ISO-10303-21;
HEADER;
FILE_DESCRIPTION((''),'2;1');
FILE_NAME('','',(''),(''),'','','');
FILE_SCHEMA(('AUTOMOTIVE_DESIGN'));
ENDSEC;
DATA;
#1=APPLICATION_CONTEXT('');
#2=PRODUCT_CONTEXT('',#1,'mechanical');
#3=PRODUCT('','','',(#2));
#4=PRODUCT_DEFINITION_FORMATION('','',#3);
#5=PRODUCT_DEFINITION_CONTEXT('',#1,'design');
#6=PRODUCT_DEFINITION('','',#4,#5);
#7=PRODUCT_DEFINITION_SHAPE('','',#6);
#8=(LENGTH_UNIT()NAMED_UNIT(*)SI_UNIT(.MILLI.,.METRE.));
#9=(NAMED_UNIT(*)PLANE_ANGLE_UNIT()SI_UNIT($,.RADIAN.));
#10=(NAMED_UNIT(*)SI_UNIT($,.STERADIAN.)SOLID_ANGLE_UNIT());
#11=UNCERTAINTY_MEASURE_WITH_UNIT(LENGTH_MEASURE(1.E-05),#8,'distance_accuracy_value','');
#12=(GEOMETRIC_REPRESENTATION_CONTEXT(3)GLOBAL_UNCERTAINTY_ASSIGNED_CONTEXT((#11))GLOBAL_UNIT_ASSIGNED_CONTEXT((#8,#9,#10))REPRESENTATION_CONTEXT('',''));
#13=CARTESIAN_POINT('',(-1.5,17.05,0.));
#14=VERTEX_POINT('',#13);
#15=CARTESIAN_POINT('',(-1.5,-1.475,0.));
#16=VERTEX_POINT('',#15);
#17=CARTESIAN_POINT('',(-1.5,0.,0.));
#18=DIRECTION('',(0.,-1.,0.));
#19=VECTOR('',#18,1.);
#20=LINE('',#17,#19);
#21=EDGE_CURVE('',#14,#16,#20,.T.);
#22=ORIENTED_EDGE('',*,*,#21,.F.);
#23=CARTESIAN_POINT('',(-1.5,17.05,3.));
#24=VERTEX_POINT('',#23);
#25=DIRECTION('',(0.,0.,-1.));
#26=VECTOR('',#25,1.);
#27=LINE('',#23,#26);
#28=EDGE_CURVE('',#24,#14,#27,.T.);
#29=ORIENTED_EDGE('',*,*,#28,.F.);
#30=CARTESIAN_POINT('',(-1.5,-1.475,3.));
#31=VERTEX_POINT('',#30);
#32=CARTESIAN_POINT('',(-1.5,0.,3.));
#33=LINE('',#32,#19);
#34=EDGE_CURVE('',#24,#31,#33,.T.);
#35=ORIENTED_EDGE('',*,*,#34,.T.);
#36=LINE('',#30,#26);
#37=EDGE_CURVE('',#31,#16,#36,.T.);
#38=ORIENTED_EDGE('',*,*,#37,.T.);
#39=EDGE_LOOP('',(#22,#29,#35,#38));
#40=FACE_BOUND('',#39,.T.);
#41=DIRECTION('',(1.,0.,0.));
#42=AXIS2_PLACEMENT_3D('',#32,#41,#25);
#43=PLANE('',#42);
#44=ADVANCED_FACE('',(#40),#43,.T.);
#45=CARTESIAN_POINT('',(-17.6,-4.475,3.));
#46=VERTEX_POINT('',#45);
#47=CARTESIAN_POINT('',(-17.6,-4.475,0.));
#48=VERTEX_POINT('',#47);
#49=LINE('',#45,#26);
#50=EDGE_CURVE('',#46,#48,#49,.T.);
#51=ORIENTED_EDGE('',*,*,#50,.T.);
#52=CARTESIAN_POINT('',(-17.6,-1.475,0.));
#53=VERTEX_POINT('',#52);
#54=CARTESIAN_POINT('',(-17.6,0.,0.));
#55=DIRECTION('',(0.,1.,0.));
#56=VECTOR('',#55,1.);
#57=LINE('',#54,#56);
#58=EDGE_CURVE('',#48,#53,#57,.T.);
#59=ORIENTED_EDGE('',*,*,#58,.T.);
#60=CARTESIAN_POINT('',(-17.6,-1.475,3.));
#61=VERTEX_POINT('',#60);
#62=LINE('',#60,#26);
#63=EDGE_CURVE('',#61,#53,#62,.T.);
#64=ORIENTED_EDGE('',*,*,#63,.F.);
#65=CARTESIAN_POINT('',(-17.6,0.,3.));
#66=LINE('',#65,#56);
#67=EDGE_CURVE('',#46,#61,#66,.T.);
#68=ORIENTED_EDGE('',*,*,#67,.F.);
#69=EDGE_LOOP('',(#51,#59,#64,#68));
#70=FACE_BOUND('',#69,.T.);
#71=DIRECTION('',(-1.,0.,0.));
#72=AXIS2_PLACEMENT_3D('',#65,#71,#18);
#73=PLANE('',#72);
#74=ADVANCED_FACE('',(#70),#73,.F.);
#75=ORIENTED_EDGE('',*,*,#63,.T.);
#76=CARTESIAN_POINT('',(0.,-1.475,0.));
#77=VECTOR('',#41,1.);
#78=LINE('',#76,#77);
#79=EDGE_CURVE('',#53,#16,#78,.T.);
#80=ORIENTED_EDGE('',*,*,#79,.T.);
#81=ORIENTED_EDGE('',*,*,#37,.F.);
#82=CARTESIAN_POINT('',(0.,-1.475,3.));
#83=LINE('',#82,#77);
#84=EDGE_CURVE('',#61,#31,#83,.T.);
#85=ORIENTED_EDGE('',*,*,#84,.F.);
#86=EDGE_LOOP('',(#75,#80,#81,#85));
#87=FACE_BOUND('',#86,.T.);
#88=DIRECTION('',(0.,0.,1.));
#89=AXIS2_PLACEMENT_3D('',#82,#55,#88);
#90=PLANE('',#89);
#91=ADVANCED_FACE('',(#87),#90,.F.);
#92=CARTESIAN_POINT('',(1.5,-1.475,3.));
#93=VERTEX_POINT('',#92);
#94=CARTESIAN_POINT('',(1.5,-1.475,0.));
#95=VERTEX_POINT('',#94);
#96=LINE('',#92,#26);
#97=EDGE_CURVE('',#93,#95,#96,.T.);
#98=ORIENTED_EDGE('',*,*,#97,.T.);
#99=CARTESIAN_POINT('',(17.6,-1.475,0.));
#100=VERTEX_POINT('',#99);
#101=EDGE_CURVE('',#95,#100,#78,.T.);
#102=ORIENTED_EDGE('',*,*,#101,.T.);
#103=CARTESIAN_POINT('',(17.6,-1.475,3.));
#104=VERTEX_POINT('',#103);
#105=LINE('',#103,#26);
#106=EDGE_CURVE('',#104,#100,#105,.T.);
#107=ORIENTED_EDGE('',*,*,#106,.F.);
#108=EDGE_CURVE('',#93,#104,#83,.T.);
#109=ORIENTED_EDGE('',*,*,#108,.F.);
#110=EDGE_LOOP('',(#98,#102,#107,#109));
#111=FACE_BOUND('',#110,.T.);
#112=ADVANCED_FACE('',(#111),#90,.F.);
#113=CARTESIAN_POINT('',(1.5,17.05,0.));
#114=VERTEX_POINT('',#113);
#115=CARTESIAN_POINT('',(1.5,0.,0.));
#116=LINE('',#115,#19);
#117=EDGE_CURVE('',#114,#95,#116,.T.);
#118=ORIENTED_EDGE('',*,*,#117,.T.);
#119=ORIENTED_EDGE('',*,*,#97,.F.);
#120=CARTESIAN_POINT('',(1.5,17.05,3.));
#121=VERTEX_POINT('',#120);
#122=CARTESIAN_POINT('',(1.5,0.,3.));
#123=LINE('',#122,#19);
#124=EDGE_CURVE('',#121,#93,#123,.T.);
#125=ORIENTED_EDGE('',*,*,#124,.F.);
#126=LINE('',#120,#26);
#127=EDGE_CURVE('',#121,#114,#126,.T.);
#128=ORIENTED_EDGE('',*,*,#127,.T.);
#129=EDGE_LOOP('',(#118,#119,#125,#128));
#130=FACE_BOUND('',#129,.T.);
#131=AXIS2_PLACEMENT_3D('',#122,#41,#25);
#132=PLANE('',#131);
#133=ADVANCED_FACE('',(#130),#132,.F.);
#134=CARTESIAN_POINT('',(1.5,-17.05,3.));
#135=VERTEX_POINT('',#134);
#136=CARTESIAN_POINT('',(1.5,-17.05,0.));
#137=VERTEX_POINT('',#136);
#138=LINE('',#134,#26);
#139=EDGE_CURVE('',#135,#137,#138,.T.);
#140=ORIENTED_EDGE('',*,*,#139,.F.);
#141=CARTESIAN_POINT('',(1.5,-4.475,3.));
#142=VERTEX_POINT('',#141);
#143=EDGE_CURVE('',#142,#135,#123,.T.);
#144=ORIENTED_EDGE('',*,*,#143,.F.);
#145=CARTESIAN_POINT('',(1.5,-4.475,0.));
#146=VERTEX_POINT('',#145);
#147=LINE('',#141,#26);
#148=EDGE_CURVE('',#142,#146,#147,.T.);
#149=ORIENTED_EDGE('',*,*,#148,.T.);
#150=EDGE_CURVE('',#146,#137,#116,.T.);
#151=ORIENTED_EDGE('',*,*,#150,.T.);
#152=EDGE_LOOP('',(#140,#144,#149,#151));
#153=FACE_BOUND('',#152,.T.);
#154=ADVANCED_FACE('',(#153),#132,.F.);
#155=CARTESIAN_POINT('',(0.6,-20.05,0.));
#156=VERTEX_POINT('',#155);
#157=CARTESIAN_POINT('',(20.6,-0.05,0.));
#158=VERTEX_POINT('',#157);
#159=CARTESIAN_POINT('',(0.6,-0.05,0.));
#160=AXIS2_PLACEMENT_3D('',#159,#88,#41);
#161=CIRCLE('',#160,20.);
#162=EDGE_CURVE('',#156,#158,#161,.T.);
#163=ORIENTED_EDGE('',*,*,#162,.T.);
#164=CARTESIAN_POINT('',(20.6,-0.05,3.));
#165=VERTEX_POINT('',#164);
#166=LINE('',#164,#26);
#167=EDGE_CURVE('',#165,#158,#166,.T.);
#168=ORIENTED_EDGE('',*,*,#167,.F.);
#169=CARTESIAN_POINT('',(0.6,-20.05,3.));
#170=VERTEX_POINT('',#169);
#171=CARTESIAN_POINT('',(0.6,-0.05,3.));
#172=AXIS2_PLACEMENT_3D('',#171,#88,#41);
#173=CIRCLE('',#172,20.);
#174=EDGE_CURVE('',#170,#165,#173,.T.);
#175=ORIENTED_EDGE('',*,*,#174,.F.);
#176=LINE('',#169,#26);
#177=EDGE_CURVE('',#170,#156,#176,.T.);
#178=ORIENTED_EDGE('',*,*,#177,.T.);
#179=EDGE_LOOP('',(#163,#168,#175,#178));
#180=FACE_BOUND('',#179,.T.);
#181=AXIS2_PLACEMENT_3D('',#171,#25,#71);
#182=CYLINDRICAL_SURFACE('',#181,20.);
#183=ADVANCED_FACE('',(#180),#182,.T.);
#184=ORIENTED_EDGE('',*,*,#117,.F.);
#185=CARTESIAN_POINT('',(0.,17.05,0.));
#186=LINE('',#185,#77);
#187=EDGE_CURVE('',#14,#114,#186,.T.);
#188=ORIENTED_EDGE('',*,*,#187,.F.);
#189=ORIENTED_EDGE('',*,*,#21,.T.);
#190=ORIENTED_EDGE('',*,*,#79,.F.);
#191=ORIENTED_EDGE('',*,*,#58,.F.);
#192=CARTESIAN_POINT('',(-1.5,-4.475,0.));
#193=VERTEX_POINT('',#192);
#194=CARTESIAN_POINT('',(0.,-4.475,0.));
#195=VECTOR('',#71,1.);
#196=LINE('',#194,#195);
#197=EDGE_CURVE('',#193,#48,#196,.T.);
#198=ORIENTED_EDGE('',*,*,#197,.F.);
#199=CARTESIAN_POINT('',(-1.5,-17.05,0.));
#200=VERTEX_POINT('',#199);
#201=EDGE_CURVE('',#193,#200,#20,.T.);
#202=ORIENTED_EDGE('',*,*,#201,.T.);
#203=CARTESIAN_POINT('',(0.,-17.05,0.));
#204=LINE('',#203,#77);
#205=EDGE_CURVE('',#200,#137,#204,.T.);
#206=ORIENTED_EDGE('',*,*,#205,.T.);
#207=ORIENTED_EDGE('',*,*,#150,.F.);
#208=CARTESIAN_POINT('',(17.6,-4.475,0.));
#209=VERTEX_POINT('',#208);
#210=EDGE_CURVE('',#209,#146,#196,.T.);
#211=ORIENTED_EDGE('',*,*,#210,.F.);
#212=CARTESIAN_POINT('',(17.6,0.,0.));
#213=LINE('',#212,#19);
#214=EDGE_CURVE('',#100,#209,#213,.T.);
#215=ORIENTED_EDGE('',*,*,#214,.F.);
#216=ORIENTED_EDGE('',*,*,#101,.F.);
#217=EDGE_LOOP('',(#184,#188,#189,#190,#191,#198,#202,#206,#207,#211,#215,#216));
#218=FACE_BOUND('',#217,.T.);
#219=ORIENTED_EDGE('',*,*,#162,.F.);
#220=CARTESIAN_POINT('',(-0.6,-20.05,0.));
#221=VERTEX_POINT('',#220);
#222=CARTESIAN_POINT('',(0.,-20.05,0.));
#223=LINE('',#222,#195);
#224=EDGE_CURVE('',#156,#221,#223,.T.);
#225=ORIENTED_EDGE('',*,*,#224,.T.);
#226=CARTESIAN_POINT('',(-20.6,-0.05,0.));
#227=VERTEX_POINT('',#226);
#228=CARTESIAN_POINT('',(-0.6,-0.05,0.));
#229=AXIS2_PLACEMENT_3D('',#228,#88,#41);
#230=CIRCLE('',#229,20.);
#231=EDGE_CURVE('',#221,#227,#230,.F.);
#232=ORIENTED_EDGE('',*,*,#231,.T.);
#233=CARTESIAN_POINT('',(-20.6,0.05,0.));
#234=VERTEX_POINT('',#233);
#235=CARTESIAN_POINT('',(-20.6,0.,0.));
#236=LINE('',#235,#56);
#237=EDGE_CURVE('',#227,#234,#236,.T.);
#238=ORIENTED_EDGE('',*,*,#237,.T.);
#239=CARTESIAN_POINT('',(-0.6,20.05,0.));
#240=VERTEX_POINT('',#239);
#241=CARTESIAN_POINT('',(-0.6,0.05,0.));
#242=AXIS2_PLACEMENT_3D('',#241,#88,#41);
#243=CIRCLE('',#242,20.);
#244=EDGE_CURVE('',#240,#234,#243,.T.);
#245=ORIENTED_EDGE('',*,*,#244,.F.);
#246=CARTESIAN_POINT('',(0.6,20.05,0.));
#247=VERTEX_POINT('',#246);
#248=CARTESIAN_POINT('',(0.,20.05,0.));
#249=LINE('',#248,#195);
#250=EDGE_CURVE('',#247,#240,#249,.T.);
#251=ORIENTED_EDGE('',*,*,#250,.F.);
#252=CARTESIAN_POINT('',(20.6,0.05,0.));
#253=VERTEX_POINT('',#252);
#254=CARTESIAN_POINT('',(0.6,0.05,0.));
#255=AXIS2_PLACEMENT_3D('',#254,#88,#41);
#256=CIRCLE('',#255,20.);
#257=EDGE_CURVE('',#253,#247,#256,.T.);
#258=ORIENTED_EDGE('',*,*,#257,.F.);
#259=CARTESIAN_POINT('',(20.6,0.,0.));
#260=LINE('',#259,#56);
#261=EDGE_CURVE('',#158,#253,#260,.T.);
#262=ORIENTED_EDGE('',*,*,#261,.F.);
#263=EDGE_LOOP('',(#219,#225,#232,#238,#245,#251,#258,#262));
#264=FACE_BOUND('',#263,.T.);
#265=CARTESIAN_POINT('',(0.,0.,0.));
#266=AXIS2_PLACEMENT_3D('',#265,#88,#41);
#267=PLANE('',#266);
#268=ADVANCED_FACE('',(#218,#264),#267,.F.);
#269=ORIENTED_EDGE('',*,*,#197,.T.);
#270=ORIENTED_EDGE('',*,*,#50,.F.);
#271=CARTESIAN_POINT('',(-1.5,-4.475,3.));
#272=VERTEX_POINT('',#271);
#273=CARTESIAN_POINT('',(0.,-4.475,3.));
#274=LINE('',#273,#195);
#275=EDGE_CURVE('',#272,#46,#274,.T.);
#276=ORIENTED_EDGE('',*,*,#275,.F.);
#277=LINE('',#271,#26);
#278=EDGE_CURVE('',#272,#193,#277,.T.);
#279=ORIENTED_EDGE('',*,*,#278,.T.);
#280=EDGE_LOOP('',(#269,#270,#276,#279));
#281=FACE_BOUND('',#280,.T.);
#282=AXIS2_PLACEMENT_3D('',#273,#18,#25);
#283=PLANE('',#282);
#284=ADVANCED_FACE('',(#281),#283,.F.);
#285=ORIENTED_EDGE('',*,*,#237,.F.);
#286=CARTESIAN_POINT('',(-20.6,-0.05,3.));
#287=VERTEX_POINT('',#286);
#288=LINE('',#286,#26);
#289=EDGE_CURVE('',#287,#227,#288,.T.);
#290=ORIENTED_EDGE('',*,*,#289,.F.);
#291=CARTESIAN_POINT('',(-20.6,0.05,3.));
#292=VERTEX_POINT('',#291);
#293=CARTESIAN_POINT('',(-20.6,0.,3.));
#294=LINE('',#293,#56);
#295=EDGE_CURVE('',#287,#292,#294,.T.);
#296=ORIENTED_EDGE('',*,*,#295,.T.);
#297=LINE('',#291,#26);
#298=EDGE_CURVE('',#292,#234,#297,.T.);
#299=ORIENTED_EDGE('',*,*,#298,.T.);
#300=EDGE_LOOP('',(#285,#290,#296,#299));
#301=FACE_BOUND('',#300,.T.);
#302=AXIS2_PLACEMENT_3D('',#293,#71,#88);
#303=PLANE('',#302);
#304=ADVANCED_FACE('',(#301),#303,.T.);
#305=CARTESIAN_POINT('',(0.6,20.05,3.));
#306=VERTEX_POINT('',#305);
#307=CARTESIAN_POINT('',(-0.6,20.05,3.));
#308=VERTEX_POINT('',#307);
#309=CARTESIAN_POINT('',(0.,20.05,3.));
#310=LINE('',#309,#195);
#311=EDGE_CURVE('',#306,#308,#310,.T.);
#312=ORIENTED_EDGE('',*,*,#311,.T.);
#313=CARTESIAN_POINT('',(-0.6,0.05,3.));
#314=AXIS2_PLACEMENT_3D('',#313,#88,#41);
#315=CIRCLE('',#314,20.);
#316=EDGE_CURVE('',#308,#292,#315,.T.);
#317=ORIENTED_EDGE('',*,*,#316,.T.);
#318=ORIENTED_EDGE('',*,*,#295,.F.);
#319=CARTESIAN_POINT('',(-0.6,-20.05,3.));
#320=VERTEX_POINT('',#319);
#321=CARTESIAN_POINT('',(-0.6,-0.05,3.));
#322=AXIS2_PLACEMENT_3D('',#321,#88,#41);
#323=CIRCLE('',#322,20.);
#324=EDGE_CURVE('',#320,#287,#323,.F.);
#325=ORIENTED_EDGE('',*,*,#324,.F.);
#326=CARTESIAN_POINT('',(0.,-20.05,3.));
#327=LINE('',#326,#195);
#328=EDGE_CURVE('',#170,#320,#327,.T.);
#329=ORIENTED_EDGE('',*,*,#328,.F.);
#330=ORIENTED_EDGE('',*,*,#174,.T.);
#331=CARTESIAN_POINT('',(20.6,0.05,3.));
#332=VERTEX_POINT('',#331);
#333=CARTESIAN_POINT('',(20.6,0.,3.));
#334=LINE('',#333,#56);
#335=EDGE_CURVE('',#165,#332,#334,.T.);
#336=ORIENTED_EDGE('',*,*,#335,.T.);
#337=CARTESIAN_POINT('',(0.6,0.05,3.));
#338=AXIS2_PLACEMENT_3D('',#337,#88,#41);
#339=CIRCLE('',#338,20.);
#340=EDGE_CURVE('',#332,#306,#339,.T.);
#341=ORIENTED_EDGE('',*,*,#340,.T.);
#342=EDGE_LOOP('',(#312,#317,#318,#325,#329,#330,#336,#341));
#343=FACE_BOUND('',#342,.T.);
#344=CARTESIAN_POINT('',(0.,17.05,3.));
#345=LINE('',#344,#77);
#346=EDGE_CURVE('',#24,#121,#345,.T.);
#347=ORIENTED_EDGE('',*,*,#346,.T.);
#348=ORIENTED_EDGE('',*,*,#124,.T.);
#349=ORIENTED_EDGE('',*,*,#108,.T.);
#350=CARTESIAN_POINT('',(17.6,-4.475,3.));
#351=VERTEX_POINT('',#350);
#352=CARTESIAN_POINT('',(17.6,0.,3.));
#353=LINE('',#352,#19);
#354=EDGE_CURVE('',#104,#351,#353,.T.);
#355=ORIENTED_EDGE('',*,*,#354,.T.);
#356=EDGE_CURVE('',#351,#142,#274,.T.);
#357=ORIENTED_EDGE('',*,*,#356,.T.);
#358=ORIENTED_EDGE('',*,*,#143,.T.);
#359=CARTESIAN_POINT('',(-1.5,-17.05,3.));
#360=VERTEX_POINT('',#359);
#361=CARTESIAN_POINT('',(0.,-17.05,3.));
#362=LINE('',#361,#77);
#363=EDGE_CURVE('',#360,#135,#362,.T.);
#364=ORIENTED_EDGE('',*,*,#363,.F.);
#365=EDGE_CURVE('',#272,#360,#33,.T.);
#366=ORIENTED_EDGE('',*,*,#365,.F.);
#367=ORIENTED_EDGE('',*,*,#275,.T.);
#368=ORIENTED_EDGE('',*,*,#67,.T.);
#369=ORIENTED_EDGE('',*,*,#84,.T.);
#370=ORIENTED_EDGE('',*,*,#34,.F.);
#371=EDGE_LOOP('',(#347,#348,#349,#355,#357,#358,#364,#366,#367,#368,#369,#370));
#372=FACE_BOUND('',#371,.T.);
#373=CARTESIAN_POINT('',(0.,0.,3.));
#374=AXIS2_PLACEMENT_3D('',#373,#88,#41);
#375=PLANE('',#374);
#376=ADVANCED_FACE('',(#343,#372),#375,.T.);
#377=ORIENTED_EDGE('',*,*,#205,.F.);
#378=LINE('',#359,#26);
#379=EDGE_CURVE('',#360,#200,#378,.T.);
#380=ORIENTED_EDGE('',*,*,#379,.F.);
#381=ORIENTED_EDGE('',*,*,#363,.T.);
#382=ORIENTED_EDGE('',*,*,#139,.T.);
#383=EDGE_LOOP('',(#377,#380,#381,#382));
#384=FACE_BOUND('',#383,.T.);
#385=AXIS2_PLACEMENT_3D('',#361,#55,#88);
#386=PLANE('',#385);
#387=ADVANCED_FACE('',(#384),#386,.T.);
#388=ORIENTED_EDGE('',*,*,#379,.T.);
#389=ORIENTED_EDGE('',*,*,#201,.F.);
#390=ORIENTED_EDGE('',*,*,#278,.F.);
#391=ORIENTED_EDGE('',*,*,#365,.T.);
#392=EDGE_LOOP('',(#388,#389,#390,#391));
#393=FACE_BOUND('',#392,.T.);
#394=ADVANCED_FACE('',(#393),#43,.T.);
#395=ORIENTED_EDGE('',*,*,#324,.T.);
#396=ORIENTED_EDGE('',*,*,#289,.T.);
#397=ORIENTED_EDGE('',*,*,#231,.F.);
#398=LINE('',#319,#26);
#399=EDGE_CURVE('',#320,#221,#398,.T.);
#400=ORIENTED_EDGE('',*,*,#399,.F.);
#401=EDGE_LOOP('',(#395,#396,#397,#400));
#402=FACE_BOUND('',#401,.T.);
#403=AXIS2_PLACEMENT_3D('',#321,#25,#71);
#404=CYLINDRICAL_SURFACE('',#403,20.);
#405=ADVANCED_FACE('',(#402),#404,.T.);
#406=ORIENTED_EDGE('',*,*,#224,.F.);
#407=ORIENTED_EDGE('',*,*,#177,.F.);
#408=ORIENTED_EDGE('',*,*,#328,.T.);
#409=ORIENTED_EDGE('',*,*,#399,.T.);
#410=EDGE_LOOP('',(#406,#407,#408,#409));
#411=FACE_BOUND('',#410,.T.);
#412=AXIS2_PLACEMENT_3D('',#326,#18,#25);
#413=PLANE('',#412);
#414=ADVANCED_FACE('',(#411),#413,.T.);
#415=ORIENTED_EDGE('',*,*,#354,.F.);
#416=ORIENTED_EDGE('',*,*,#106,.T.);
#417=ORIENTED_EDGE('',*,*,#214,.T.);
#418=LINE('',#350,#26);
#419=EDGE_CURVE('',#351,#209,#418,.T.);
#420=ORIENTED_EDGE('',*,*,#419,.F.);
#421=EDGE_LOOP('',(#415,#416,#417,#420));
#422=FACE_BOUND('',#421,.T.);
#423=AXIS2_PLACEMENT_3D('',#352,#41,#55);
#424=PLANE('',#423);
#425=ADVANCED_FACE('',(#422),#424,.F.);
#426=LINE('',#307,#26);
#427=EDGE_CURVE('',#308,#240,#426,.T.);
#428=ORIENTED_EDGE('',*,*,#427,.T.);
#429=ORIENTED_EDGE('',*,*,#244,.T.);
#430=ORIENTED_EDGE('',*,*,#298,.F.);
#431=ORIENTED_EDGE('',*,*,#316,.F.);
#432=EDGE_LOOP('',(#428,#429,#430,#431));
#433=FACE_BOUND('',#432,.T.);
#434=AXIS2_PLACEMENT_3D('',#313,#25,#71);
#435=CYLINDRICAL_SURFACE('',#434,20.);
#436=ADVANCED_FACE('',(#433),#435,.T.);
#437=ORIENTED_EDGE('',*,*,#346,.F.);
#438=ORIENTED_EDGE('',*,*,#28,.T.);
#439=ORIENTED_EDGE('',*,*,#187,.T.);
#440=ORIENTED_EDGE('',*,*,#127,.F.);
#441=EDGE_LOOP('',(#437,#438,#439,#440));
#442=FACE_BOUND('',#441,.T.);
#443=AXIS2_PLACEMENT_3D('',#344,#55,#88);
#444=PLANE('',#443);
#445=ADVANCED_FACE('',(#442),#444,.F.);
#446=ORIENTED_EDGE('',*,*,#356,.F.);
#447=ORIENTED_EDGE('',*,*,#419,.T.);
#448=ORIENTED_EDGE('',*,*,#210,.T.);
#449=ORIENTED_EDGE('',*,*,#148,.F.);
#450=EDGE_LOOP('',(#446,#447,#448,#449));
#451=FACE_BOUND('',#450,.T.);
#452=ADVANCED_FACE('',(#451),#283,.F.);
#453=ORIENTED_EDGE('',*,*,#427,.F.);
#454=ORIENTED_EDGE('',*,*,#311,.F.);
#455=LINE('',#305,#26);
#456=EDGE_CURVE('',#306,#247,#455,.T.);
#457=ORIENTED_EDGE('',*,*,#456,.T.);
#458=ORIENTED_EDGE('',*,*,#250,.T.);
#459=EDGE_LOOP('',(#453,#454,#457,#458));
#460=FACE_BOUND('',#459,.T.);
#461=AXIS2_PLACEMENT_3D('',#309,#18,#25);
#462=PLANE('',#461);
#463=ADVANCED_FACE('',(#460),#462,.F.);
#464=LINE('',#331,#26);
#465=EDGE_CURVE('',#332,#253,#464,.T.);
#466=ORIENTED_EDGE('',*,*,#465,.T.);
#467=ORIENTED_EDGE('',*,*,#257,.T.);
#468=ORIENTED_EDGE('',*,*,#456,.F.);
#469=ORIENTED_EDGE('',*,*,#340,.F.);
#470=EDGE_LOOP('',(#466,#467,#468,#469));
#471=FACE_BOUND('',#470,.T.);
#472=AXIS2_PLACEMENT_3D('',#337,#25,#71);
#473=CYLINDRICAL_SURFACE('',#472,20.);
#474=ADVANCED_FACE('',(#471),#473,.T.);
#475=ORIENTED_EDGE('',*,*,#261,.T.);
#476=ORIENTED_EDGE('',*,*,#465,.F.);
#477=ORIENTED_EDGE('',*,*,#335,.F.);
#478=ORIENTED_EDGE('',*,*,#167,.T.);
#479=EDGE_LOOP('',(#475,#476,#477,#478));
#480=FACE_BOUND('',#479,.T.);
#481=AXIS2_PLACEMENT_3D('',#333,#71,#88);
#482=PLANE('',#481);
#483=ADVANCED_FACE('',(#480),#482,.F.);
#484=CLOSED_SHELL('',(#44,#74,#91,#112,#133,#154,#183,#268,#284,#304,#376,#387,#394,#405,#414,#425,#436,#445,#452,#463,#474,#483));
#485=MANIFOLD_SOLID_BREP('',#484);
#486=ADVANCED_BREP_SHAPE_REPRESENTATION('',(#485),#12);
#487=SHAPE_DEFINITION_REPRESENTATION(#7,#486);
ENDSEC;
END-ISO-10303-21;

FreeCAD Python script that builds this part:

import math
import FreeCAD as App
import Part
import Sketcher
from FreeCAD import Vector
Q = App.Units.Quantity


def add_polygon(sketch, points):
    """Adds a closed chain of lines whose ends are joined by coincident constraints."""
    first, n = sketch.GeometryCount, len(points)
    for a, b in zip(points, points[1:] + points[:1]):
        sketch.addGeometry(Part.LineSegment(App.Vector(*a, 0), App.Vector(*b, 0)), False)
    for i in range(n):
        sketch.addConstraint(Sketcher.Constraint("Coincident", first + i, 2, first + (i + 1) % n, 1))

doc = App.newDocument("Part")
body = doc.addObject("PartDesign::Body", "Body")

# Sketch on XY plane
sketch1 = body.newObject("Sketcher::SketchObject", "Sketch")
sketch1.AttachmentSupport = (doc.getObject("XY_Plane"), [""])
sketch1.MapMode = "FlatFace"
sketch1.addGeometry(Part.LineSegment(Vector(-0.6, -20.05, 0), Vector(0.6, -20.05, 0)), False)  # 0
sketch1.addGeometry(Part.ArcOfCircle(Part.Circle(Vector(0.6, -0.05, 0), Vector(0, 0, 1), 20), math.radians(-90), math.radians(0)), False)  # 1
sketch1.addGeometry(Part.LineSegment(Vector(20.6, -0.05, 0), Vector(20.6, 0.05, 0)), False)  # 2
sketch1.addGeometry(Part.ArcOfCircle(Part.Circle(Vector(0.6, 0.05, 0), Vector(0, 0, 1), 20), math.radians(0), math.radians(90)), False)  # 3
sketch1.addGeometry(Part.LineSegment(Vector(0.6, 20.05, 0), Vector(-0.6, 20.05, 0)), False)  # 4
sketch1.addGeometry(Part.ArcOfCircle(Part.Circle(Vector(-0.6, 0.05, 0), Vector(0, 0, 1), 20), math.radians(90), math.radians(180)), False)  # 5
sketch1.addGeometry(Part.LineSegment(Vector(-20.6, 0.05, 0), Vector(-20.6, -0.05, 0)), False)  # 6
sketch1.addGeometry(Part.ArcOfCircle(Part.Circle(Vector(-0.6, -0.05, 0), Vector(0, 0, 1), 20), math.radians(180), math.radians(270)), False)  # 7
add_polygon(sketch1, [(-1.5, -4.47), (-17.6, -4.47), (-17.6, -1.48), (-1.5, -1.48), (-1.5, 17.05), (1.5, 17.05), (1.5, -1.48), (17.6, -1.48), (17.6, -4.47), (1.5, -4.47), (1.5, -17.05), (-1.5, -17.05)])  # lines 8-19
sketch1.addConstraint([
    Sketcher.Constraint("Tangent", 0, 2, 1, 1),
    Sketcher.Constraint("Tangent", 1, 2, 2, 1),
    Sketcher.Constraint("Tangent", 2, 2, 3, 1),
    Sketcher.Constraint("Tangent", 3, 2, 4, 1),
    Sketcher.Constraint("Tangent", 4, 2, 5, 1),
    Sketcher.Constraint("Tangent", 5, 2, 6, 1),
    Sketcher.Constraint("Tangent", 6, 2, 7, 1),
    Sketcher.Constraint("Tangent", 7, 2, 0, 1),
    Sketcher.Constraint("Horizontal", 0),
    Sketcher.Constraint("Vertical", 2),
    Sketcher.Constraint("Horizontal", 4),
    Sketcher.Constraint("Vertical", 6),
    Sketcher.Constraint("Horizontal", 8),
    Sketcher.Constraint("Vertical", 9),
    Sketcher.Constraint("Horizontal", 10),
    Sketcher.Constraint("Vertical", 11),
    Sketcher.Constraint("Horizontal", 12),
    Sketcher.Constraint("Vertical", 13),
    Sketcher.Constraint("Horizontal", 14),
    Sketcher.Constraint("Vertical", 15),
    Sketcher.Constraint("Horizontal", 16),
    Sketcher.Constraint("Vertical", 17),
    Sketcher.Constraint("Horizontal", 18),
    Sketcher.Constraint("Vertical", 19),
    Sketcher.Constraint("Equal", 1, 3),
    Sketcher.Constraint("Equal", 3, 5),
    Sketcher.Constraint("Equal", 5, 7),
    Sketcher.Constraint("Symmetric", 1, 3, 5, 3, -1, 1),
    Sketcher.Constraint("Symmetric", 11, 2, 17, 2, -1, 1),
    Sketcher.Constraint("Symmetric", 10, 2, 13, 2, -2),
    Sketcher.Constraint("Symmetric", 8, 2, 15, 2, -2),
    Sketcher.Constraint("Vertical", 11, 2, 18, 2),
    Sketcher.Constraint("Equal", 18, 9),
    Sketcher.Constraint("Radius", 1, Q("20 mm")),
    Sketcher.Constraint("DistanceX", 12, 1, 12, 2, Q("3 mm")),
    Sketcher.Constraint("DistanceX", 0, 1, 0, 2, Q("1.2 mm")),
    Sketcher.Constraint("DistanceX", 8, 2, 8, 1, Q("16.1 mm")),
    Sketcher.Constraint("DistanceY", 2, 1, 2, 2, Q("0.1 mm")),
    Sketcher.Constraint("DistanceY", 11, 2, 4, 2, Q("3 mm")),
    Sketcher.Constraint("DistanceY", 11, 1, 11, 2, Q("18.525 mm")),
])
pad1 = body.newObject("PartDesign::Pad", "Pad")
pad1.Profile = sketch1
pad1.Length = 3

doc.recompute()
